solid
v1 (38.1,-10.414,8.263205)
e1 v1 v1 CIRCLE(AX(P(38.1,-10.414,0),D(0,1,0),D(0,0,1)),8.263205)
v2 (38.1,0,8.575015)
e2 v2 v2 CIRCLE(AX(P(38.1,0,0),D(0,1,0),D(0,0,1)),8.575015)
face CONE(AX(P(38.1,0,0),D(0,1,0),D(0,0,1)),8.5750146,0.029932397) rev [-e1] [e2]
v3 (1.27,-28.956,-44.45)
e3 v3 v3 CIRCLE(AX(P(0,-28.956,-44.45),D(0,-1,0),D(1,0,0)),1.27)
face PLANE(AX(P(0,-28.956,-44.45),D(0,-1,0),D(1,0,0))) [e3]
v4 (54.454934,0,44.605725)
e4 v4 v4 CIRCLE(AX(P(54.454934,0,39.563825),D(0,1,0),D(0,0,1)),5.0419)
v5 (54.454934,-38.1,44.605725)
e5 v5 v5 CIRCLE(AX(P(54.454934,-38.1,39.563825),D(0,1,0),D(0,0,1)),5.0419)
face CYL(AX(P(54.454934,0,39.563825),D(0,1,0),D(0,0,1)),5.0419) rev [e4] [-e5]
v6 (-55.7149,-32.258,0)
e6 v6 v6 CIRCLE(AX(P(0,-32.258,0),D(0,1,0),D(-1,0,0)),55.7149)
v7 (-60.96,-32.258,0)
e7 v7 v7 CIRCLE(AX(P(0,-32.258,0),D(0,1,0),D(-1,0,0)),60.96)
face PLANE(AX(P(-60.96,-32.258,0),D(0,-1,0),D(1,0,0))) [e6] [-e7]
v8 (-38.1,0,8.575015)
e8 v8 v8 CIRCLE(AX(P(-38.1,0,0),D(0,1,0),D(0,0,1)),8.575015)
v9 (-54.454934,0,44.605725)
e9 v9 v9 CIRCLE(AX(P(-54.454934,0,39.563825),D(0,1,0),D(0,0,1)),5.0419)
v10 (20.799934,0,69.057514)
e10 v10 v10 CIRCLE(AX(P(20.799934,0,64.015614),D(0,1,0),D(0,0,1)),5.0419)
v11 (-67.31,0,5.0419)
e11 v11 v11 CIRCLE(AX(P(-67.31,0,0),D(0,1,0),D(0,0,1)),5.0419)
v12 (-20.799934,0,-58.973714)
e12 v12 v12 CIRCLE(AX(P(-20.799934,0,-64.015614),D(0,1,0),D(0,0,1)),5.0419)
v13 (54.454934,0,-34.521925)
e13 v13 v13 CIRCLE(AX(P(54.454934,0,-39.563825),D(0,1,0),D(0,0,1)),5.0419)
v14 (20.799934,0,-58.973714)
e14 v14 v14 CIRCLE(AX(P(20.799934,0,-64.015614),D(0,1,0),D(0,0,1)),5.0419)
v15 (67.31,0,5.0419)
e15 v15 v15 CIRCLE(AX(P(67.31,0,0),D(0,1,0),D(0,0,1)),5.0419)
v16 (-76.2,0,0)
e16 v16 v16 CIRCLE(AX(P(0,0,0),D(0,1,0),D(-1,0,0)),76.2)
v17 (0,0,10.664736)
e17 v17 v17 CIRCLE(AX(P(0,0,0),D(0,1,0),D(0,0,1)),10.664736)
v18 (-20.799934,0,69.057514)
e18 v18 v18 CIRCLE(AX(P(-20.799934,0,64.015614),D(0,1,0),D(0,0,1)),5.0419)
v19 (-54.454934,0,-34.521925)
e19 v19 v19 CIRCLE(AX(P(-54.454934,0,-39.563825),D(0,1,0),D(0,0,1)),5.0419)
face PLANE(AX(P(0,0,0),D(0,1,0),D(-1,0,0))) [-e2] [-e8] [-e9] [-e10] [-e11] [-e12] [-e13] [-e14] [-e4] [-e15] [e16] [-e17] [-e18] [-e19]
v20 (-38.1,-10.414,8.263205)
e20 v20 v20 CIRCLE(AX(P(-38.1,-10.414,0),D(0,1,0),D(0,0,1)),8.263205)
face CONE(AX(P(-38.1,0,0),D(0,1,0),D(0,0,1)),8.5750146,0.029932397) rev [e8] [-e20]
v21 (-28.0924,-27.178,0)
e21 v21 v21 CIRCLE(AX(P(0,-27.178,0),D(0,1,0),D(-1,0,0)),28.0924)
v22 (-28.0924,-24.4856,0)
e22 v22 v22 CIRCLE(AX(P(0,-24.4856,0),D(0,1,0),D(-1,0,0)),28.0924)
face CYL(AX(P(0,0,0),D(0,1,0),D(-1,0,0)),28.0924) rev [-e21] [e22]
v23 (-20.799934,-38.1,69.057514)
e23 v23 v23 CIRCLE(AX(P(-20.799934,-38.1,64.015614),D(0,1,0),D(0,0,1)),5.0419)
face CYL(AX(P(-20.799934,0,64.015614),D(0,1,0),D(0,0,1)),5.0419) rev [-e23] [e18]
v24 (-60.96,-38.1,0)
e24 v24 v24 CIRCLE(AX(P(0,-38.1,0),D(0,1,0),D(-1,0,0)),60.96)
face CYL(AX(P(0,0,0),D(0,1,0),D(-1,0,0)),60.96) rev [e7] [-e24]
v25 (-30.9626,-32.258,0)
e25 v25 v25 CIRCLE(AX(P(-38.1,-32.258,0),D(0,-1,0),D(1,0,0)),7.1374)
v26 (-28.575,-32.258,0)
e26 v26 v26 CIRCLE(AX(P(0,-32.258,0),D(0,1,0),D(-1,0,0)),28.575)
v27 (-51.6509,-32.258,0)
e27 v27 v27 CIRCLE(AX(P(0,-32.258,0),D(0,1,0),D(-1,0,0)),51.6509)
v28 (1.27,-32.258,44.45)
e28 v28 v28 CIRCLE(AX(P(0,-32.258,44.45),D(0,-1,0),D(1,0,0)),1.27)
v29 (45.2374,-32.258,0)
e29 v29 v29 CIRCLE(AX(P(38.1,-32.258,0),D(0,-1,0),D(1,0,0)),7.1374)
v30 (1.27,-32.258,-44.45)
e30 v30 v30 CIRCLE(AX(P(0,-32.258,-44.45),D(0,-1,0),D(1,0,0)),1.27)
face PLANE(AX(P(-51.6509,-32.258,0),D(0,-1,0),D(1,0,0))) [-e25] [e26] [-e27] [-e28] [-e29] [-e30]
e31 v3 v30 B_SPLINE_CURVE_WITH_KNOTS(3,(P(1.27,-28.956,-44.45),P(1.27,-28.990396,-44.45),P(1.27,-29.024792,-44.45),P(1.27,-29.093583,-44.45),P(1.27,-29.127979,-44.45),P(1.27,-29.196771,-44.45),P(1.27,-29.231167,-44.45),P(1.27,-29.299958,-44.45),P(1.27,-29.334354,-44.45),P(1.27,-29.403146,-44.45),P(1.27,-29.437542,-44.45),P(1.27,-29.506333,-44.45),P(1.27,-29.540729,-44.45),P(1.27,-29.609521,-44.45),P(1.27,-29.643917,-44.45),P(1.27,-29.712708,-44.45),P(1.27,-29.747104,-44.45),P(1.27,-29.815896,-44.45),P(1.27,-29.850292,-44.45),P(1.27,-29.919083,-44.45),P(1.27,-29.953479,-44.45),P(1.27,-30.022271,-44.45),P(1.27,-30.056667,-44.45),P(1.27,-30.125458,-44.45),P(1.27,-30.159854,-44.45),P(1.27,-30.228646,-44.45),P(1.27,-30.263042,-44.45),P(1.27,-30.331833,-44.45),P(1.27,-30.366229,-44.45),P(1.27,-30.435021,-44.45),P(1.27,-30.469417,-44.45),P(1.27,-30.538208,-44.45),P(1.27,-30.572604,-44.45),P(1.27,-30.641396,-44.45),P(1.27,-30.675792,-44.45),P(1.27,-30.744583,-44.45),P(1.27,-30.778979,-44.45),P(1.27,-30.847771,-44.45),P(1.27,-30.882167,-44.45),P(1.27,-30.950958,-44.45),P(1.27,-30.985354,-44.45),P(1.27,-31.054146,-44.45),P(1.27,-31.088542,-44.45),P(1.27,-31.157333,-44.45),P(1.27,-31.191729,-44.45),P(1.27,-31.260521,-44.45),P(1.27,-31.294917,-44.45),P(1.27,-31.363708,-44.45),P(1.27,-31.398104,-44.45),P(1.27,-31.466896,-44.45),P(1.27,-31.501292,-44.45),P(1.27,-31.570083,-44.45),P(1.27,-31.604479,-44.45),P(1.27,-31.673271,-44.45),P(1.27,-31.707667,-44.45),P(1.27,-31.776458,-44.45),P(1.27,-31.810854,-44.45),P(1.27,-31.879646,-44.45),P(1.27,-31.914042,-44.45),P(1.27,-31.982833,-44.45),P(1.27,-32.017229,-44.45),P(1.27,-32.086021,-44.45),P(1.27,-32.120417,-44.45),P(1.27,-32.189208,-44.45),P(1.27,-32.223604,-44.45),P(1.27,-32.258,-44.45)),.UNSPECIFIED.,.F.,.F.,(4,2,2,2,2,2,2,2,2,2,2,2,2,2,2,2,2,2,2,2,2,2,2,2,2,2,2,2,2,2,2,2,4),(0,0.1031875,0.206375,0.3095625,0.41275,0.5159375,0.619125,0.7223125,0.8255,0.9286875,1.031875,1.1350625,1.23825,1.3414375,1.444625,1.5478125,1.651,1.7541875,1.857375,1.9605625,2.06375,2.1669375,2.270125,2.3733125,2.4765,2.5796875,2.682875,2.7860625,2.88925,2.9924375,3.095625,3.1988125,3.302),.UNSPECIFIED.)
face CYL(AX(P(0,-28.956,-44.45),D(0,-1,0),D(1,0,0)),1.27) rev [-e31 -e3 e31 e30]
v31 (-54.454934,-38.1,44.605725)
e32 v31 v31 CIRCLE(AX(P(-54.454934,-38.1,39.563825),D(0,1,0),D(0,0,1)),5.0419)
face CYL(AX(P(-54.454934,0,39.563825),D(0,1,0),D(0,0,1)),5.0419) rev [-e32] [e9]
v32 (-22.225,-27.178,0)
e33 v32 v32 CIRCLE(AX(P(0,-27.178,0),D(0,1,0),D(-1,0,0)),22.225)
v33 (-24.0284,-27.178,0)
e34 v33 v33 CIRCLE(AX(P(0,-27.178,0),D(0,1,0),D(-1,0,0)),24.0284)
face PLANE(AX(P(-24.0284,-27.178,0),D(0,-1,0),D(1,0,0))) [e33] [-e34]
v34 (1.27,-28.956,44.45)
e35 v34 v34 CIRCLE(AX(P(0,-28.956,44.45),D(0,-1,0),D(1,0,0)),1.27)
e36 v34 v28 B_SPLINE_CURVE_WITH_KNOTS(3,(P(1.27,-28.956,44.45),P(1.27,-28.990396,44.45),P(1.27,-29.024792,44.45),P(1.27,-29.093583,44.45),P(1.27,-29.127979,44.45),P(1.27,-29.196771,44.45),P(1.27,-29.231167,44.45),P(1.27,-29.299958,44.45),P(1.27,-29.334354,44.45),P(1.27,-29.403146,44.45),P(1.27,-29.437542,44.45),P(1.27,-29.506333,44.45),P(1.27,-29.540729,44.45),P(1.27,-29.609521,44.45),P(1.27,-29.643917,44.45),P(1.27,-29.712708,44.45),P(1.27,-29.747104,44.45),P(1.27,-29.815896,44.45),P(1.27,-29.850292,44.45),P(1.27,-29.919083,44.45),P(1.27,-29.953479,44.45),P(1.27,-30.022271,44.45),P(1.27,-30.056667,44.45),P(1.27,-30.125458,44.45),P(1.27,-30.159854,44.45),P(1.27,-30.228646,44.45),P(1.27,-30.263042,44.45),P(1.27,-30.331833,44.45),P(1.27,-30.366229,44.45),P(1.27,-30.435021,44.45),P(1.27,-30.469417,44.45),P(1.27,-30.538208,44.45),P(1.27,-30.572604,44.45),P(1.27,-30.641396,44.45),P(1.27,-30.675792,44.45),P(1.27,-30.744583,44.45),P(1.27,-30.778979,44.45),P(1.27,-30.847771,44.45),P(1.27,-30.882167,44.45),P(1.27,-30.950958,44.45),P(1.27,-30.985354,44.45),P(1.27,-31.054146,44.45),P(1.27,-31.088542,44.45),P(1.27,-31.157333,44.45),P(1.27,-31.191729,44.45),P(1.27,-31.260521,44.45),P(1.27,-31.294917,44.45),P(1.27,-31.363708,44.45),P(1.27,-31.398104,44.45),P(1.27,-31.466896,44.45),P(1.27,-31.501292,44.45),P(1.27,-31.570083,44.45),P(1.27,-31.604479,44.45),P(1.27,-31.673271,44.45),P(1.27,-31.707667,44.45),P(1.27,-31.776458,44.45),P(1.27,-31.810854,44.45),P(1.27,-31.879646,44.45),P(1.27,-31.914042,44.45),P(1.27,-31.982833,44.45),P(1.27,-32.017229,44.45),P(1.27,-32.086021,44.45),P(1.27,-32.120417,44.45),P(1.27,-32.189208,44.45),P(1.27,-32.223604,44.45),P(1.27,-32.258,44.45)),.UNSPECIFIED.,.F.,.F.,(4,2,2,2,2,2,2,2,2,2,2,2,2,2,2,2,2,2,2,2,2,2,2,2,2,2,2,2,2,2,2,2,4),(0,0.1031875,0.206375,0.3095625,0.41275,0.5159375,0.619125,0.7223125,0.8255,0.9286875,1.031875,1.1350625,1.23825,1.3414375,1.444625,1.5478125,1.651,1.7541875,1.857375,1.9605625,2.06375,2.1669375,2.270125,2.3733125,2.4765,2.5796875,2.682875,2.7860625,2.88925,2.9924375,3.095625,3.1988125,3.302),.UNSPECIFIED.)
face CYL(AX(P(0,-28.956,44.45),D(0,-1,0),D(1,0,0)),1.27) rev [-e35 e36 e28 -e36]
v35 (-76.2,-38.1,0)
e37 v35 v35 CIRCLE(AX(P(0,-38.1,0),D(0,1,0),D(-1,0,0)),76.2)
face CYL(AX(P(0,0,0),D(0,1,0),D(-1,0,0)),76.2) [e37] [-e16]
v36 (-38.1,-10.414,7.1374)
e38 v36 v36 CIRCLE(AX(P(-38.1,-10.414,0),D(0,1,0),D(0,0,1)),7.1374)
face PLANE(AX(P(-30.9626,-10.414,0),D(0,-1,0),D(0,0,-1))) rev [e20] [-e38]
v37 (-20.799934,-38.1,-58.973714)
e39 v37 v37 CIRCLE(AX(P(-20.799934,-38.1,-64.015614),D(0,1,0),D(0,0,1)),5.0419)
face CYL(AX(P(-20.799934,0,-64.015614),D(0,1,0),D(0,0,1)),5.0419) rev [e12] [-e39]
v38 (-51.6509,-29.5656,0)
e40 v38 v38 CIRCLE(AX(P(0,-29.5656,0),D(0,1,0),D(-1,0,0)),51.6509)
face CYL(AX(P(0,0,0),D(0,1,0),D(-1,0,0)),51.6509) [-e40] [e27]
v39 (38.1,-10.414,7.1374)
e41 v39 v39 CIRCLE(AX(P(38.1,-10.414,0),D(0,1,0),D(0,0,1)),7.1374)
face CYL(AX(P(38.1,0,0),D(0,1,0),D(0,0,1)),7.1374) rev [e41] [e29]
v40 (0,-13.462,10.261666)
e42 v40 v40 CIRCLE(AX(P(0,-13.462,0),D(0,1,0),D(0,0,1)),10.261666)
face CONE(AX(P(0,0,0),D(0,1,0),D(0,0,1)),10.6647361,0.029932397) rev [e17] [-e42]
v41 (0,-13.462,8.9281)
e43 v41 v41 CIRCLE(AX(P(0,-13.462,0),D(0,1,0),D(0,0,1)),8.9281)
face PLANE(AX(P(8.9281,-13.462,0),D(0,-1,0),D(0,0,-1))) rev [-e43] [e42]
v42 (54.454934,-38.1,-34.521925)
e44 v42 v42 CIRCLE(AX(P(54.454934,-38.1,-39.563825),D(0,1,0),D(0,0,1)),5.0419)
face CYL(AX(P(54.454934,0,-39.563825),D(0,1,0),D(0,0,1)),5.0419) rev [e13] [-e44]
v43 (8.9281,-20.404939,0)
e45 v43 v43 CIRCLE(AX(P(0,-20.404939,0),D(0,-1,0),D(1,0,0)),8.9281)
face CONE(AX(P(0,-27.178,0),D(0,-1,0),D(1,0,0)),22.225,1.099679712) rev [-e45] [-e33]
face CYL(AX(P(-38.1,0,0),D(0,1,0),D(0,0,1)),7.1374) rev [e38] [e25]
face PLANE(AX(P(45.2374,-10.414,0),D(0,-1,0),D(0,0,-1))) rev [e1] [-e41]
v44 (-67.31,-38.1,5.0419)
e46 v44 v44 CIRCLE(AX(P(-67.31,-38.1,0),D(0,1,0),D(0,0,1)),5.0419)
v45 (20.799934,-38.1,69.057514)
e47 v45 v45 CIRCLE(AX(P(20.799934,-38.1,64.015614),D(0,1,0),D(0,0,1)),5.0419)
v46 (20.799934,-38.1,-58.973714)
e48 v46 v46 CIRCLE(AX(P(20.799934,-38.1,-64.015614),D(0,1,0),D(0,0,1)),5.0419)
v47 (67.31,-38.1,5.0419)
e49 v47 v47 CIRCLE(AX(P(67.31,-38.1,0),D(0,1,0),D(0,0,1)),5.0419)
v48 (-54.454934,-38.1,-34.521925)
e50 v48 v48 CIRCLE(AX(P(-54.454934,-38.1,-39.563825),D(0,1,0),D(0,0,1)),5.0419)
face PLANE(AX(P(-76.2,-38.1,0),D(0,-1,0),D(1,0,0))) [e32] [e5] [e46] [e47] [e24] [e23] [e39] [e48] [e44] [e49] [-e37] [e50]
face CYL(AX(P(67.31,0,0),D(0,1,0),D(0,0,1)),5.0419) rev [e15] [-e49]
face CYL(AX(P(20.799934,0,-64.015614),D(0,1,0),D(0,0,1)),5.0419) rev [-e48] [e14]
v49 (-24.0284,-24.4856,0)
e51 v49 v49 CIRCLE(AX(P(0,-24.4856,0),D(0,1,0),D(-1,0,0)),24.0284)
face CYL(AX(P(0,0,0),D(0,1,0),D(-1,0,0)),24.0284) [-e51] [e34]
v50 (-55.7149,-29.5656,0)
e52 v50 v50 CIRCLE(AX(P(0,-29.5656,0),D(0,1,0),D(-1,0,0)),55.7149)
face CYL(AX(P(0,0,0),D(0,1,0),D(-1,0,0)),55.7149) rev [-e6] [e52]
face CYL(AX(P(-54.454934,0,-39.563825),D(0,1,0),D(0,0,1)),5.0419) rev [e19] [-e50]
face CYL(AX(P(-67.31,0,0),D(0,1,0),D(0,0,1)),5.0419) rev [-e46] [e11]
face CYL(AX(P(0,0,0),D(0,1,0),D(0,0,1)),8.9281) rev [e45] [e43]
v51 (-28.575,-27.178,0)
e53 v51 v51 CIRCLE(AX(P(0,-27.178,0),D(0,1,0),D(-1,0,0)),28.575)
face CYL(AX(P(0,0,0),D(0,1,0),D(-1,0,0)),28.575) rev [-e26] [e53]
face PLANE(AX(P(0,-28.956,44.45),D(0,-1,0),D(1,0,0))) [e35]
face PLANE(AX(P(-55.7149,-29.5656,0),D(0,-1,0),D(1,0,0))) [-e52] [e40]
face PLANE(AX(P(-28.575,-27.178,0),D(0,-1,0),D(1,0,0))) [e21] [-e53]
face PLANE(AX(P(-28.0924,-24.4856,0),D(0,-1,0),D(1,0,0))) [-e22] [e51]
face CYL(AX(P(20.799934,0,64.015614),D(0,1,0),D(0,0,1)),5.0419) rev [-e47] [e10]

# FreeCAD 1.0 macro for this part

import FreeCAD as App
import Part
import Sketcher
Q = App.Units.Quantity


def add_polygon(sketch, points):
    """Adds a closed chain of lines whose ends are joined by coincident constraints."""
    first, n = sketch.GeometryCount, len(points)
    for a, b in zip(points, points[1:] + points[:1]):
        sketch.addGeometry(Part.LineSegment(App.Vector(*a, 0), App.Vector(*b, 0)), False)
    for i in range(n):
        sketch.addConstraint(Sketcher.Constraint("Coincident", first + i, 2, first + (i + 1) % n, 1))

doc = App.newDocument("Part")
body = doc.addObject("PartDesign::Body", "Body")

# Sketch on XY plane
sketch1 = doc.addObject("Sketcher::SketchObject", "Sketch")
body.addObject(sketch1)
sketch1.AttachmentSupport = (doc.XY_Plane, [""])
sketch1.MapMode = "FlatFace"
add_polygon(sketch1, [(0, 0), (-76.2, 0), (-76.2, -38.1), (-60.96, -38.1), (-60.96, -32.26), (-55.71, -32.26), (-55.71, -29.57), (-51.65, -29.57), (-51.65, -32.26), (-28.57, -32.26), (-28.57, -27.18), (-28.09, -27.18), (-28.09, -24.49), (-24.03, -24.49), (-24.03, -27.18), (-22.23, -27.18), (0, -15.86)])  # lines 0-16
sketch1.addConstraint(Sketcher.Constraint("Horizontal", 0))
sketch1.addConstraint(Sketcher.Constraint("Vertical", 1))
sketch1.addConstraint(Sketcher.Constraint("Horizontal", 2))
sketch1.addConstraint(Sketcher.Constraint("Vertical", 3))
sketch1.addConstraint(Sketcher.Constraint("Horizontal", 4))
sketch1.addConstraint(Sketcher.Constraint("Vertical", 5))
sketch1.addConstraint(Sketcher.Constraint("Horizontal", 6))
sketch1.addConstraint(Sketcher.Constraint("Vertical", 7))
sketch1.addConstraint(Sketcher.Constraint("Horizontal", 8))
sketch1.addConstraint(Sketcher.Constraint("Vertical", 9))
sketch1.addConstraint(Sketcher.Constraint("Horizontal", 10))
sketch1.addConstraint(Sketcher.Constraint("Vertical", 11))
sketch1.addConstraint(Sketcher.Constraint("Horizontal", 12))
sketch1.addConstraint(Sketcher.Constraint("Vertical", 13))
sketch1.addConstraint(Sketcher.Constraint("Horizontal", 14))
sketch1.addConstraint(Sketcher.Constraint("Vertical", 16))
sketch1.addConstraint(Sketcher.Constraint("Coincident", 16, 2, -1, 1))
sketch1.addConstraint(Sketcher.Constraint("Horizontal", 4, 2, 7, 2))
sketch1.addConstraint(Sketcher.Constraint("Horizontal", 10, 2, 13, 2))
sketch1.addConstraint(Sketcher.Constraint("Equal", 6, 12))
sketch1.addConstraint(Sketcher.Constraint("Equal", 7, 11))
sketch1.addConstraint(Sketcher.Constraint("DistanceX", 0, 2, 0, 1, Q("3 in")))
sketch1.addConstraint(Sketcher.Constraint("DistanceX", 2, 1, 2, 2, Q("0.6 in")))
sketch1.addConstraint(Sketcher.Constraint("DistanceY", 1, 2, 1, 1, Q("1.5 in")))
sketch1.addConstraint(Sketcher.Constraint("DistanceY", 9, 1, 9, 2, Q("0.2 in")))
sketch1.addConstraint(Sketcher.Constraint("DistanceX", 6, 1, 6, 2, Q("0.16 in")))
sketch1.addConstraint(Sketcher.Constraint("DistanceY", 3, 1, 3, 2, Q("0.23 in")))
sketch1.addConstraint(Sketcher.Constraint("DistanceX", 10, 1, 10, 2, Q("0.019 in")))
sketch1.addConstraint(Sketcher.Constraint("DistanceX", 14, 1, 14, 2, Q("0.071 in")))
sketch1.addConstraint(Sketcher.Constraint("DistanceY", 5, 1, 5, 2, Q("0.106 in")))
sketch1.addConstraint(Sketcher.Constraint("DistanceX", 4, 1, 4, 2, Q("0.2065 in")))
sketch1.addConstraint(Sketcher.Constraint("DistanceX", 8, 1, 8, 2, Q("0.9085 in")))
sketch1.addConstraint(Sketcher.Constraint("DistanceY", 16, 1, 16, 2, Q("0.6243 in")))
revolution = doc.addObject("PartDesign::Revolution", "Revolution")
body.addObject(revolution)
revolution.Profile = sketch1
revolution.ReferenceAxis = (sketch1, ["V_Axis"])
revolution.Angle = 360

# Sketch on YZ plane
sketch2 = doc.addObject("Sketcher::SketchObject", "Sketch001")
body.addObject(sketch2)
sketch2.AttachmentSupport = (doc.YZ_Plane, [""])
sketch2.MapMode = "FlatFace"
add_polygon(sketch2, [(-38.1, 0), (0, 0), (0, 10.7), (-13.5, 10.3), (-13.5, 8.9), (-38.1, 8.9)])  # lines 0-5
sketch2.addConstraint(Sketcher.Constraint("Horizontal", 0))
sketch2.addConstraint(Sketcher.Constraint("Vertical", 1))
sketch2.addConstraint(Sketcher.Constraint("Vertical", 3))
sketch2.addConstraint(Sketcher.Constraint("Horizontal", 4))
sketch2.addConstraint(Sketcher.Constraint("Vertical", 5))
sketch2.addConstraint(Sketcher.Constraint("Coincident", 0, 2, -1, 1))
sketch2.addConstraint(Sketcher.Constraint("DistanceX", 0, 1, 0, 2, Q("1.5 in")))
sketch2.addConstraint(Sketcher.Constraint("DistanceX", 4, 2, 4, 1, Q("0.97 in")))
sketch2.addConstraint(Sketcher.Constraint("DistanceY", 5, 2, 5, 1, Q("0.3515 in")))
sketch2.addConstraint(Sketcher.Constraint("DistanceY", 1, 1, 1, 2, 10.664736))
sketch2.addConstraint(Sketcher.Constraint("DistanceY", 3, 2, 3, 1, 1.333566))
groove = doc.addObject("PartDesign::Groove", "Groove")
body.addObject(groove)
groove.Profile = sketch2
groove.ReferenceAxis = (sketch2, ["H_Axis"])
groove.Angle = 360

# Sketch on YZ plane
sketch3 = doc.addObject("Sketcher::SketchObject", "Sketch002")
body.addObject(sketch3)
sketch3.AttachmentSupport = (doc.YZ_Plane, [""])
sketch3.MapMode = "FlatFace"
sketch3.AttachmentOffset = App.Placement(App.Vector(0, 0, -1.5 * 25.4), App.Rotation())
add_polygon(sketch3, [(-38.1, 0), (0, 0), (0, 8.6), (-10.4, 8.3), (-10.4, 7.1), (-38.1, 7.1)])  # lines 0-5
sketch3.addConstraint(Sketcher.Constraint("Horizontal", 0))
sketch3.addConstraint(Sketcher.Constraint("Vertical", 1))
sketch3.addConstraint(Sketcher.Constraint("Vertical", 3))
sketch3.addConstraint(Sketcher.Constraint("Horizontal", 4))
sketch3.addConstraint(Sketcher.Constraint("Vertical", 5))
sketch3.addConstraint(Sketcher.Constraint("Coincident", 0, 2, -1, 1))
sketch3.addConstraint(Sketcher.Constraint("DistanceX", 0, 1, 0, 2, Q("1.5 in")))
sketch3.addConstraint(Sketcher.Constraint("DistanceX", 4, 2, 4, 1, Q("1.09 in")))
sketch3.addConstraint(Sketcher.Constraint("DistanceY", 5, 2, 5, 1, Q("0.281 in")))
sketch3.addConstraint(Sketcher.Constraint("DistanceY", 1, 1, 1, 2, 8.575015))
sketch3.addConstraint(Sketcher.Constraint("DistanceY", 3, 2, 3, 1, 1.125805))
groove2 = doc.addObject("PartDesign::Groove", "Groove001")
body.addObject(groove2)
groove2.Profile = sketch3
groove2.ReferenceAxis = (sketch3, ["H_Axis"])
groove2.Angle = 360
doc.recompute()

linearpattern = doc.addObject("PartDesign::LinearPattern", "LinearPattern")
body.addObject(linearpattern)
linearpattern.Originals = [groove2]
linearpattern.Direction = (doc.X_Axis, [""])
linearpattern.Mode = "offset"
linearpattern.Offset = Q("3 in")
linearpattern.Occurrences = 2
body.Tip = linearpattern

# Sketch on XZ plane
sketch4 = doc.addObject("Sketcher::SketchObject", "Sketch003")
body.addObject(sketch4)
sketch4.AttachmentSupport = (doc.XZ_Plane, [""])
sketch4.MapMode = "FlatFace"
sketch4.addGeometry(Part.Circle(App.Vector(67, 0, 0), App.Vector(0, 0, 1), 5), False)
sketch4.addConstraint(Sketcher.Constraint("PointOnObject", 0, 3, -1))
sketch4.addConstraint(Sketcher.Constraint("Diameter", 0, Q("0.397 in")))
sketch4.addConstraint(Sketcher.Constraint("DistanceX", -1, 1, 0, 3, Q("2.65 in")))
doc.recompute()
hole = doc.addObject("PartDesign::Hole", "Hole")
body.addObject(hole)
hole.Profile = sketch4
hole.ThreadType = "None"
hole.Diameter = Q("0.397 in")
hole.DepthType = "ThroughAll"
hole.Reversed = True
doc.recompute()

polarpattern = doc.addObject("PartDesign::PolarPattern", "PolarPattern")
body.addObject(polarpattern)
polarpattern.Originals = [hole]
polarpattern.Axis = (doc.Y_Axis, [""])
polarpattern.Angle = 360
polarpattern.Occurrences = 10
body.Tip = polarpattern

# Sketch on XZ plane
sketch5 = doc.addObject("Sketcher::SketchObject", "Sketch004")
body.addObject(sketch5)
sketch5.AttachmentSupport = (doc.XZ_Plane, [""])
sketch5.MapMode = "FlatFace"
sketch5.AttachmentOffset = App.Placement(App.Vector(0, 0, 1.27 * 25.4), App.Rotation())
sketch5.addGeometry(Part.Circle(App.Vector(0, 44.5, 0), App.Vector(0, 0, 1), 1.3), False)
sketch5.addGeometry(Part.Circle(App.Vector(0, -44.5, 0), App.Vector(0, 0, 1), 1.3), False)
sketch5.addConstraint(Sketcher.Constraint("Equal", 0, 1))
sketch5.addConstraint(Sketcher.Constraint("Symmetric", 0, 3, 1, 3, -1, 1))
sketch5.addConstraint(Sketcher.Constraint("PointOnObject", 0, 3, -2))
sketch5.addConstraint(Sketcher.Constraint("Diameter", 0, Q("0.1 in")))
sketch5.addConstraint(Sketcher.Constraint("DistanceY", 1, 3, 0, 3, Q("3.5 in")))
pocket1 = doc.addObject("PartDesign::Pocket", "Pocket")
body.addObject(pocket1)
pocket1.Profile = sketch5
pocket1.Length = Q("0.13 in")

doc.recompute()
